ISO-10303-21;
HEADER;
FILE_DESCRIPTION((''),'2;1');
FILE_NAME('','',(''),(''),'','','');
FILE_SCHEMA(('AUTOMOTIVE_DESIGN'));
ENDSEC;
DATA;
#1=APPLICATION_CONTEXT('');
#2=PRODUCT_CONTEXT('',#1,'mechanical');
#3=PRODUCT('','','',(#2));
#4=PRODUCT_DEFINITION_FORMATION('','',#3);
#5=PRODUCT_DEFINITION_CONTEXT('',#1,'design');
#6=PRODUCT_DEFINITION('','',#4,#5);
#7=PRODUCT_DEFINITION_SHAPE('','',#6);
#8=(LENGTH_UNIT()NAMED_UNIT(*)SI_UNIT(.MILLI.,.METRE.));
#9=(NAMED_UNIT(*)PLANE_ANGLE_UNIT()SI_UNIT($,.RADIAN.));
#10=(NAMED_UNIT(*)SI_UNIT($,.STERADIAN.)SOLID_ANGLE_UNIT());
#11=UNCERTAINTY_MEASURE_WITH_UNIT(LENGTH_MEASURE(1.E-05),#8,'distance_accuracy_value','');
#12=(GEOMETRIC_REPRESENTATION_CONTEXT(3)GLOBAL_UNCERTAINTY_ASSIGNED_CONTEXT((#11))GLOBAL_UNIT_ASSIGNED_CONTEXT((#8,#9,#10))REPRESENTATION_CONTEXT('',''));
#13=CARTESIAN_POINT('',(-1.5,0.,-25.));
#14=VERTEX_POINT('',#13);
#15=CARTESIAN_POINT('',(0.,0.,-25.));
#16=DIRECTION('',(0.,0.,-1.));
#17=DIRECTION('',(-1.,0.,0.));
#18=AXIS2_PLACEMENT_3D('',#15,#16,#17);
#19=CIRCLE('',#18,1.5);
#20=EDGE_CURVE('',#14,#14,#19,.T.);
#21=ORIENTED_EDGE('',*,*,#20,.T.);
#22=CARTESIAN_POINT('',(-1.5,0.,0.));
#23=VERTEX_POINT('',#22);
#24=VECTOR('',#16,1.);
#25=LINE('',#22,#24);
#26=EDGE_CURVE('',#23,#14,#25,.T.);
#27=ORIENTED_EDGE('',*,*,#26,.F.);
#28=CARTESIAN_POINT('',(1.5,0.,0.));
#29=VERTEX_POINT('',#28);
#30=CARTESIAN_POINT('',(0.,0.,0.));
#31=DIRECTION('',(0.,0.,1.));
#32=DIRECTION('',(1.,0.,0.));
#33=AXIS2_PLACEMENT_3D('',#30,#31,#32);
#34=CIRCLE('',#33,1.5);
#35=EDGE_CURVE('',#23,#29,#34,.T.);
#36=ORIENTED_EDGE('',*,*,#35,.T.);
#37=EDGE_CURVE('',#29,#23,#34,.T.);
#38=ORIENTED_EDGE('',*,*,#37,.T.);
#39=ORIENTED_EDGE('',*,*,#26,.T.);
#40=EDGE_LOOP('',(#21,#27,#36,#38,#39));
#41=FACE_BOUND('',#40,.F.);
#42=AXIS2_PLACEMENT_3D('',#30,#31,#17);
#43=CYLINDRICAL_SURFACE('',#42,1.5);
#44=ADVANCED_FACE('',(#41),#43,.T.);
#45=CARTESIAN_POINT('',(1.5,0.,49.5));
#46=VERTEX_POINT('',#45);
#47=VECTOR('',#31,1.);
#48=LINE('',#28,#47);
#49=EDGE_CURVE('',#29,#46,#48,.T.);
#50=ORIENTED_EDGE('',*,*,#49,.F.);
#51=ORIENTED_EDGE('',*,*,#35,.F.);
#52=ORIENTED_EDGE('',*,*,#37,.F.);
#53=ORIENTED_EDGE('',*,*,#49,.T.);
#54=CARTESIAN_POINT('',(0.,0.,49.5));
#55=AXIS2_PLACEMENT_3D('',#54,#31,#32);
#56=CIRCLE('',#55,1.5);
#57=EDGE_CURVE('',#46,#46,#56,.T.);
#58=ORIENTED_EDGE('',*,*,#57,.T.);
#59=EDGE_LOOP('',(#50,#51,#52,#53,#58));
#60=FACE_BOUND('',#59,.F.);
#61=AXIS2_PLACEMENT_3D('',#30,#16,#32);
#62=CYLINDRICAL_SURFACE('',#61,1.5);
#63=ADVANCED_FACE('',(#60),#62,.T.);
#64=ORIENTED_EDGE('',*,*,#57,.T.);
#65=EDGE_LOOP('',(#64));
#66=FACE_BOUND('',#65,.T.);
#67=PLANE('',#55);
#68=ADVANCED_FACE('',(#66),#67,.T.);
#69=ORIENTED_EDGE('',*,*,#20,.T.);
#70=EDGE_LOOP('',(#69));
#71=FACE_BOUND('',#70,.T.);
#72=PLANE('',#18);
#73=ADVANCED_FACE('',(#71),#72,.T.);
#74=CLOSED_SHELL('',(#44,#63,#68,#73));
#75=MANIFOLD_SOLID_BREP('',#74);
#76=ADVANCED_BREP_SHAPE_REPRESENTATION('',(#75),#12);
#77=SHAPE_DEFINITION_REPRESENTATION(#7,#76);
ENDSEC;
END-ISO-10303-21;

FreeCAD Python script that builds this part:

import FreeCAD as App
import Part
import Sketcher

V = App.Vector

doc = App.newDocument("Part")
body = doc.addObject("PartDesign::Body", "Body")

sketch1 = body.newObject("Sketcher::SketchObject", "Sketch")
sketch1.AttachmentSupport = (doc.getObject("XY_Plane"), [""])
sketch1.MapMode = "FlatFace"
sketch1.addGeometry(Part.Circle(V(0, 0, 0), V(0, 0, 1), 1.5), False)
sketch1.addConstraint([
    Sketcher.Constraint("Coincident", 0, 3, -1, 1),
    Sketcher.Constraint("Diameter", 0, 3.0),
])
pad1 = body.newObject("PartDesign::Pad", "Pad")
pad1.Profile = sketch1
pad1.Length = 49.5

sketch2 = body.newObject("Sketcher::SketchObject", "Sketch001")
sketch2.AttachmentSupport = (doc.getObject("XY_Plane"), [""])
sketch2.MapMode = "FlatFace"
sketch2.addGeometry(Part.Circle(V(0, 0, 0), V(0, 0, 1), 1.5), False)
sketch2.addConstraint([
    Sketcher.Constraint("Coincident", 0, 3, -1, 1),
    Sketcher.Constraint("Diameter", 0, 3.0),
])
pad2 = body.newObject("PartDesign::Pad", "Pad001")
pad2.Profile = sketch2
pad2.Length = 25
pad2.Reversed = True

doc.recompute()
